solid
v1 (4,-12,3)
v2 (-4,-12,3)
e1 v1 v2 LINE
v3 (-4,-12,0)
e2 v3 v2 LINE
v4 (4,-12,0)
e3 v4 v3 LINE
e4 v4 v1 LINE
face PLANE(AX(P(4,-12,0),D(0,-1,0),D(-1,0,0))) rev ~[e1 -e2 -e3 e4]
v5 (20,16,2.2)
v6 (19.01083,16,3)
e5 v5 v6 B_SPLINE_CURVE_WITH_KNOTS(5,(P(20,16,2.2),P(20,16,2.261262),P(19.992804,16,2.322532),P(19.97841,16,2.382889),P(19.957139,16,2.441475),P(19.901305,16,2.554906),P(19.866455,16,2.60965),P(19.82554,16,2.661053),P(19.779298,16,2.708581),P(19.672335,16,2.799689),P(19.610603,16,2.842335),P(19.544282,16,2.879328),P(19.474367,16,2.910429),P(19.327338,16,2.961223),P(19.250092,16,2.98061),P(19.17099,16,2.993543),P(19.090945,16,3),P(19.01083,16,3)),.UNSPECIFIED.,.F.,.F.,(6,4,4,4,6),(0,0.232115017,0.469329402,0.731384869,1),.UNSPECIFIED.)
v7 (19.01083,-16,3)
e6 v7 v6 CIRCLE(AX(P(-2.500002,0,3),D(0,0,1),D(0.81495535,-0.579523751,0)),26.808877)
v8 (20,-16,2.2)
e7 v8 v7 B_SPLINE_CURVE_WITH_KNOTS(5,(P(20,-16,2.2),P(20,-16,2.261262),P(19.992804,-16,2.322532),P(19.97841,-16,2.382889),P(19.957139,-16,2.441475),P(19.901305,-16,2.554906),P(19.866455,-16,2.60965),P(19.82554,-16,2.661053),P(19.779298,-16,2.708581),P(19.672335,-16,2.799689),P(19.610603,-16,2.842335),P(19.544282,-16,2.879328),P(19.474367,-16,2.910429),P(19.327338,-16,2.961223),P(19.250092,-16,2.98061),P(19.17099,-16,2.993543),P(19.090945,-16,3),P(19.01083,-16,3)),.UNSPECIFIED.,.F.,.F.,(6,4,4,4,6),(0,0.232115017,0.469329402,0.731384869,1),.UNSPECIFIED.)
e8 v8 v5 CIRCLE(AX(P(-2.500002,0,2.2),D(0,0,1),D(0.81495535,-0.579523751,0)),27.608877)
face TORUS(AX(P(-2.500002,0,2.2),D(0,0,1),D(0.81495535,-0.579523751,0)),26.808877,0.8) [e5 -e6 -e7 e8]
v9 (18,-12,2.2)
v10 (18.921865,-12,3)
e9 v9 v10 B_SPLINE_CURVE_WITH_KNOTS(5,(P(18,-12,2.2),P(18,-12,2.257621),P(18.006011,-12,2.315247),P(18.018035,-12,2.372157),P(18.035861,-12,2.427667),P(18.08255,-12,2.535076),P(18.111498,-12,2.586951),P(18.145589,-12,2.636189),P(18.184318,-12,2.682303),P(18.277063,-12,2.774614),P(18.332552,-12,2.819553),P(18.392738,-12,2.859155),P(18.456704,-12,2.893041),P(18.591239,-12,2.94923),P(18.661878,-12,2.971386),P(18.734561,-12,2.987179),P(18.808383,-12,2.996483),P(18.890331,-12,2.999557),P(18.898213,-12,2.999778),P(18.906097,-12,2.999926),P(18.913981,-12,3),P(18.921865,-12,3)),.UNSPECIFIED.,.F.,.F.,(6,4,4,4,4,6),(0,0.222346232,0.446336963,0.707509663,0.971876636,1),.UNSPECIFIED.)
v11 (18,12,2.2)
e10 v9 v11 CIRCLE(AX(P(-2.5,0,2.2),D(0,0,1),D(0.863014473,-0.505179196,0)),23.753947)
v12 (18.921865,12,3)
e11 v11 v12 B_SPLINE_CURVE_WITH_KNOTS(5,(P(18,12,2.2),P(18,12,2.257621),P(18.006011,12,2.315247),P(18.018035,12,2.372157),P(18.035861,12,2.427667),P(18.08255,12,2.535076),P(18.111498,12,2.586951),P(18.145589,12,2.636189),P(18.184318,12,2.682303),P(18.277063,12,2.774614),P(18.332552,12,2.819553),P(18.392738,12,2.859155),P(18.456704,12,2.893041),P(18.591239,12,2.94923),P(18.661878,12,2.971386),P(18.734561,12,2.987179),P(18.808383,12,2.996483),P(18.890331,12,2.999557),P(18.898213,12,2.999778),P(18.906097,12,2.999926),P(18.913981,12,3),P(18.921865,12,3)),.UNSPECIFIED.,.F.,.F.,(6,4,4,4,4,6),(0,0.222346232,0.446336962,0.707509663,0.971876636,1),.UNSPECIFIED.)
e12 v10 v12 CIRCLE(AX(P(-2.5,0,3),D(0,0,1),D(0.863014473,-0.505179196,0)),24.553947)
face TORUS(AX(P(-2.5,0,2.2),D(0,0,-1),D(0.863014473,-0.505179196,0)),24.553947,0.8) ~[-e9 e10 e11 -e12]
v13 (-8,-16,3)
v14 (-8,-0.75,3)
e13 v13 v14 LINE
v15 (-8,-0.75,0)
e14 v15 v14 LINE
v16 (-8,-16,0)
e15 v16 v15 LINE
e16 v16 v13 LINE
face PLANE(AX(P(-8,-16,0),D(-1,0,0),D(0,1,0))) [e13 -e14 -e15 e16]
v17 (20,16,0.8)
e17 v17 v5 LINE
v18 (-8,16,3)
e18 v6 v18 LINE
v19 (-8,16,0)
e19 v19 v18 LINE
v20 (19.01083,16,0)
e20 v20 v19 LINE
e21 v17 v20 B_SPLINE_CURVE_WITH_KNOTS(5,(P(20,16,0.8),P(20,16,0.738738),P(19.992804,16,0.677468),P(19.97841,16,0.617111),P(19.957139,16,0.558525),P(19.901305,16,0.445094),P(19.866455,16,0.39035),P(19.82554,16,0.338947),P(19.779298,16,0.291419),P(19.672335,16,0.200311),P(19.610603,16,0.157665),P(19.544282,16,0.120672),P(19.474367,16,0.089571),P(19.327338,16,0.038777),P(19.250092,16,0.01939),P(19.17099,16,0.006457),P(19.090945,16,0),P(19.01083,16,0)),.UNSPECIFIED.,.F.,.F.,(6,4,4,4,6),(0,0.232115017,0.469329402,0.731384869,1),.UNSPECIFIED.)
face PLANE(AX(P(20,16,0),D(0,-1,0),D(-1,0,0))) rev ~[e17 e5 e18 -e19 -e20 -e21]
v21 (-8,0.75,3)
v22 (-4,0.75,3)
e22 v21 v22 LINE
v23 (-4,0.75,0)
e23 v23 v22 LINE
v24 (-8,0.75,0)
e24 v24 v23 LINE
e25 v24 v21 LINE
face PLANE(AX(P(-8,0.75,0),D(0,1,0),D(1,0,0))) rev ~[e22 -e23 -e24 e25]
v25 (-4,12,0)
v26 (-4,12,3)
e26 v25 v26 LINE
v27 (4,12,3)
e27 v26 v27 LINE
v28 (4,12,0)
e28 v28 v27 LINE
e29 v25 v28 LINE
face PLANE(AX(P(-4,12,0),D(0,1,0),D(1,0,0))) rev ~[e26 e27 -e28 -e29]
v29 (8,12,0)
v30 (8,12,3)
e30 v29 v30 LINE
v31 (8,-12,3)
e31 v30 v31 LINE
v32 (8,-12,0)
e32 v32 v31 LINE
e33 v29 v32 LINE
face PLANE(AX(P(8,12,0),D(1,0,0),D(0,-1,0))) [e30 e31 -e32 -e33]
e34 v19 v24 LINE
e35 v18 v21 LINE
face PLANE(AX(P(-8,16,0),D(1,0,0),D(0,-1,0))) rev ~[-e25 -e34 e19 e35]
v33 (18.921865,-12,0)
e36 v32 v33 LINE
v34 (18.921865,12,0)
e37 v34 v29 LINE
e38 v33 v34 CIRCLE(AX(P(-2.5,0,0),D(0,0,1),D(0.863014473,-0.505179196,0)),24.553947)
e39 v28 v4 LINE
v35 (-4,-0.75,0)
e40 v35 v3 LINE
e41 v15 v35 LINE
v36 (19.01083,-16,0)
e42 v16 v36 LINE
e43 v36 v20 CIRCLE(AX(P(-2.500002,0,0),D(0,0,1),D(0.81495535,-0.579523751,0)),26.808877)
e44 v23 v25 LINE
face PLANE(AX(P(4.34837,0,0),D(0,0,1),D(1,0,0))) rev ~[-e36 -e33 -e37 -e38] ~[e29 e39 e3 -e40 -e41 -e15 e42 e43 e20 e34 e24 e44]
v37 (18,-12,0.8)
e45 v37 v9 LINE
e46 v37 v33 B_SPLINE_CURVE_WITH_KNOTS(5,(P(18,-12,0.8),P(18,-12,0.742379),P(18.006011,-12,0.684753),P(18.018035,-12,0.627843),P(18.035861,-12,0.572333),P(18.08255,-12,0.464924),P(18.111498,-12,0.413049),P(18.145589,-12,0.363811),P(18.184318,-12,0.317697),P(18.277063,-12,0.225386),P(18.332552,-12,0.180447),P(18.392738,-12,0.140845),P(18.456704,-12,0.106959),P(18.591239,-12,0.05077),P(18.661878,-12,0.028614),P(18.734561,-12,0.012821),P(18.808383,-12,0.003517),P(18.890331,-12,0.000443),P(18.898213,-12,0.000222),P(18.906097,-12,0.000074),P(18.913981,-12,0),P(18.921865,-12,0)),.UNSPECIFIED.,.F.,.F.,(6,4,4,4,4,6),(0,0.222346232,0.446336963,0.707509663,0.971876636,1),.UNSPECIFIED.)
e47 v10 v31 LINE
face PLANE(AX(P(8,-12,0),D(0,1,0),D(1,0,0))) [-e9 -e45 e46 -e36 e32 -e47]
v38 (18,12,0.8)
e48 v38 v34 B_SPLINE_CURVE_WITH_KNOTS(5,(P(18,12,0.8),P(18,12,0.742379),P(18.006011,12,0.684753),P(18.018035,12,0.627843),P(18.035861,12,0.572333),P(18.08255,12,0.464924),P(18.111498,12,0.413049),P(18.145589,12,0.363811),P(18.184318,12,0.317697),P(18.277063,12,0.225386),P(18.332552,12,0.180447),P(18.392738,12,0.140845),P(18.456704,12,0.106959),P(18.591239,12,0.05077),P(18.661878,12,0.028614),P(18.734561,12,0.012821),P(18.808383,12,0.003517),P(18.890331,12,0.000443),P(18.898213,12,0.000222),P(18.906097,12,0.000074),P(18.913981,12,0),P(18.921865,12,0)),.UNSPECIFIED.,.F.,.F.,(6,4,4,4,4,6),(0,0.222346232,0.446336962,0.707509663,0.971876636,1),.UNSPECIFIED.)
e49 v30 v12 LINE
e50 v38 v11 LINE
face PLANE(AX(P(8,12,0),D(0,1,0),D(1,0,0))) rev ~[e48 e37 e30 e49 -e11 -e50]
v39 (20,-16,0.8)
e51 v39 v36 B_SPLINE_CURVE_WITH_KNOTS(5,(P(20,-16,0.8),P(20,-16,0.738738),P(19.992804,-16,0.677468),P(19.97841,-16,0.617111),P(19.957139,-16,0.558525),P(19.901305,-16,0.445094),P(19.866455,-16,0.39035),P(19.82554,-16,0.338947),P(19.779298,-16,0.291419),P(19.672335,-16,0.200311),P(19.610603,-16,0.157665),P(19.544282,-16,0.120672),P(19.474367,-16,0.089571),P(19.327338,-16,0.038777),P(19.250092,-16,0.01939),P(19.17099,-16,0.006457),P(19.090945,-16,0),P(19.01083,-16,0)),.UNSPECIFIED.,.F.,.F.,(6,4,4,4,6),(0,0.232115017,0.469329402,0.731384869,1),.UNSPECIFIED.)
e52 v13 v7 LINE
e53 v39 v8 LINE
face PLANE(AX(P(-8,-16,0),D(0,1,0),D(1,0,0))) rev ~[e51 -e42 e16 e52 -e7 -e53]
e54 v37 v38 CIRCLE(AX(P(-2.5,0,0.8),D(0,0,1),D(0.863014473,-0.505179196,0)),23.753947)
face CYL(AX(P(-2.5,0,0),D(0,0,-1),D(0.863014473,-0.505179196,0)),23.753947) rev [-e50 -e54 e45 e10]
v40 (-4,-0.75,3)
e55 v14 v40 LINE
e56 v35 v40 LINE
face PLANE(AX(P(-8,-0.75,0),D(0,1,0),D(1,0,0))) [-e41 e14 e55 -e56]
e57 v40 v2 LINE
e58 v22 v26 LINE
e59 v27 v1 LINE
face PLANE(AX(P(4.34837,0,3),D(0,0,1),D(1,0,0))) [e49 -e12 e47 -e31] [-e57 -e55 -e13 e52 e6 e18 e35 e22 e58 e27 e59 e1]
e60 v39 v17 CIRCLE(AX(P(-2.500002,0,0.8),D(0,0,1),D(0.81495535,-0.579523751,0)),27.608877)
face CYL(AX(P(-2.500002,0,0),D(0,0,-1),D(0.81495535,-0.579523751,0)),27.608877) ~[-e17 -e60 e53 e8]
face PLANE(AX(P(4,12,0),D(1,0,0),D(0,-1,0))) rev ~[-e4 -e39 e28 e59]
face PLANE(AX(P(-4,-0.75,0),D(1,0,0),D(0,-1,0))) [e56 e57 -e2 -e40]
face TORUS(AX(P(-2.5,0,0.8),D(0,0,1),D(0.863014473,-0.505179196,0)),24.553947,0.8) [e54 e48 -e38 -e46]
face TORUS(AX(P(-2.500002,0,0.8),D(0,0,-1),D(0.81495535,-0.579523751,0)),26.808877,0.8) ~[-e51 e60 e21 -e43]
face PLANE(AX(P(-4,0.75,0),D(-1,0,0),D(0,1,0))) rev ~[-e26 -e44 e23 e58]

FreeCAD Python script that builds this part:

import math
import FreeCAD as App
import Part
import Sketcher
Q = App.Units.Quantity


def edges_at(feature, points):
    """Names of the edges that pass closest to the given points."""
    edges = feature.Shape.Edges
    near = lambda p: min(range(len(edges)), key=lambda i: edges[i].distToShape(Part.Vertex(*p))[0])
    return sorted({f"Edge{near(p) + 1}" for p in points})

doc = App.newDocument("Part")
params = doc.addObject("Spreadsheet::Sheet", "Params")
for row, (alias, value) in enumerate([
    ("sketch1_width", "8 mm"),
    ("sketch1_width2", "4 mm"),
    ("sketch1_width3", "28 mm"),
    ("sketch1_width4", "10 mm"),
    ("sketch1_height", "24 mm"),
    ("pad1_length", "3 mm"),
    ("fillet_radius", "0.8 mm"),
], start=1):
    params.set(f"A{row}", alias)
    params.set(f"B{row}", "=" + value)
    params.setAlias(f"B{row}", alias)

body = doc.addObject("PartDesign::Body", "Body")

# Sketch on XY plane
sketch1 = body.newObject("Sketcher::SketchObject", "Sketch")
sketch1.AttachmentSupport = (doc.getObject("XY_Plane"), [""])
sketch1.MapMode = "FlatFace"
sketch1.addGeometry(Part.LineSegment(App.Vector(-4, 12, 0), App.Vector(4, 12, 0)), False)
sketch1.addGeometry(Part.LineSegment(App.Vector(4, 12, 0), App.Vector(4, -12, 0)), False)
sketch1.addGeometry(Part.LineSegment(App.Vector(4, -12, 0), App.Vector(-4, -12, 0)), False)
sketch1.addGeometry(Part.LineSegment(App.Vector(-4, -12, 0), App.Vector(-4, -0.8, 0)), False)
sketch1.addGeometry(Part.LineSegment(App.Vector(-4, -0.8, 0), App.Vector(-8, -0.8, 0)), False)
sketch1.addGeometry(Part.LineSegment(App.Vector(-8, -0.8, 0), App.Vector(-8, -16, 0)), False)
sketch1.addGeometry(Part.LineSegment(App.Vector(-8, -16, 0), App.Vector(20, -16, 0)), False)
sketch1.addGeometry(Part.ArcOfCircle(Part.Circle(App.Vector(-2.5, 0, 0), App.Vector(0, 0, 1), 27.6), math.radians(-35), math.radians(35)), False)
sketch1.addGeometry(Part.LineSegment(App.Vector(20, 16, 0), App.Vector(-8, 16, 0)), False)
sketch1.addGeometry(Part.LineSegment(App.Vector(-8, 16, 0), App.Vector(-8, 0.8, 0)), False)
sketch1.addGeometry(Part.LineSegment(App.Vector(-8, 0.8, 0), App.Vector(-4, 0.8, 0)), False)
sketch1.addGeometry(Part.LineSegment(App.Vector(-4, 0.8, 0), App.Vector(-4, 12, 0)), False)
sketch1.addGeometry(Part.LineSegment(App.Vector(8, -12, 0), App.Vector(8, 12, 0)), False)
sketch1.addGeometry(Part.LineSegment(App.Vector(8, 12, 0), App.Vector(18, 12, 0)), False)
sketch1.addGeometry(Part.ArcOfCircle(Part.Circle(App.Vector(-2.5, 0, 0), App.Vector(0, 0, 1), 23.8), math.radians(-30), math.radians(30)), False)
sketch1.addGeometry(Part.LineSegment(App.Vector(18, -12, 0), App.Vector(8, -12, 0)), False)
sketch1.addConstraint(Sketcher.Constraint("Coincident", 0, 2, 1, 1))
sketch1.addConstraint(Sketcher.Constraint("Coincident", 1, 2, 2, 1))
sketch1.addConstraint(Sketcher.Constraint("Coincident", 2, 2, 3, 1))
sketch1.addConstraint(Sketcher.Constraint("Coincident", 3, 2, 4, 1))
sketch1.addConstraint(Sketcher.Constraint("Coincident", 4, 2, 5, 1))
sketch1.addConstraint(Sketcher.Constraint("Coincident", 5, 2, 6, 1))
sketch1.addConstraint(Sketcher.Constraint("Coincident", 6, 2, 7, 1))
sketch1.addConstraint(Sketcher.Constraint("Coincident", 7, 2, 8, 1))
sketch1.addConstraint(Sketcher.Constraint("Coincident", 8, 2, 9, 1))
sketch1.addConstraint(Sketcher.Constraint("Coincident", 9, 2, 10, 1))
sketch1.addConstraint(Sketcher.Constraint("Coincident", 10, 2, 11, 1))
sketch1.addConstraint(Sketcher.Constraint("Coincident", 11, 2, 0, 1))
sketch1.addConstraint(Sketcher.Constraint("Coincident", 12, 2, 13, 1))
sketch1.addConstraint(Sketcher.Constraint("Coincident", 13, 2, 14, 2))
sketch1.addConstraint(Sketcher.Constraint("Coincident", 14, 1, 15, 1))
sketch1.addConstraint(Sketcher.Constraint("Coincident", 15, 2, 12, 1))
sketch1.addConstraint(Sketcher.Constraint("Horizontal", 0))
sketch1.addConstraint(Sketcher.Constraint("Vertical", 1))
sketch1.addConstraint(Sketcher.Constraint("Horizontal", 2))
sketch1.addConstraint(Sketcher.Constraint("Vertical", 3))
sketch1.addConstraint(Sketcher.Constraint("Horizontal", 4))
sketch1.addConstraint(Sketcher.Constraint("Vertical", 5))
sketch1.addConstraint(Sketcher.Constraint("Horizontal", 6))
sketch1.addConstraint(Sketcher.Constraint("Horizontal", 8))
sketch1.addConstraint(Sketcher.Constraint("Vertical", 9))
sketch1.addConstraint(Sketcher.Constraint("Horizontal", 10))
sketch1.addConstraint(Sketcher.Constraint("Vertical", 11))
sketch1.addConstraint(Sketcher.Constraint("Vertical", 12))
sketch1.addConstraint(Sketcher.Constraint("Horizontal", 13))
sketch1.addConstraint(Sketcher.Constraint("Horizontal", 15))
sketch1.addConstraint(Sketcher.Constraint("Coincident", 14, 3, 7, 3))
sketch1.addConstraint(Sketcher.Constraint("Symmetric", 0, 2, 2, 2, -1, 1))
sketch1.addConstraint(Sketcher.Constraint("Symmetric", 6, 2, 7, 2, -1))
sketch1.addConstraint(Sketcher.Constraint("Symmetric", 4, 2, 9, 2, -1))
sketch1.addConstraint(Sketcher.Constraint("Horizontal", 11, 2, 12, 2))
sketch1.addConstraint(Sketcher.Constraint("Horizontal", 2, 2, 14, 1))
sketch1.addConstraint(Sketcher.Constraint("Vertical", 3, 2, 10, 2))
sketch1.addConstraint(Sketcher.Constraint("DistanceX", 0, 1, 0, 2, Q("8 mm")))
sketch1.addConstraint(Sketcher.Constraint("DistanceX", 4, 2, 4, 1, Q("4 mm")))
sketch1.addConstraint(Sketcher.Constraint("DistanceX", 6, 1, 6, 2, Q("28 mm")))
sketch1.addConstraint(Sketcher.Constraint("DistanceX", 13, 1, 13, 2, Q("10 mm")))
sketch1.addConstraint(Sketcher.Constraint("DistanceY", 1, 2, 1, 1, Q("24 mm")))
sketch1.addConstraint(Sketcher.Constraint("DistanceY", 5, 2, -1, 1, Q("16 mm")))
sketch1.addConstraint(Sketcher.Constraint("DistanceX", -1, 1, 12, 2, Q("8 mm")))
sketch1.addConstraint(Sketcher.Constraint("DistanceY", 3, 1, 3, 2, Q("11.25 mm")))
sketch1.addConstraint(Sketcher.Constraint("DistanceX", 14, 3, -1, 1, Q("2.5 mm")))
sketch1.setExpression("Constraints[37]", "Params.sketch1_width")
sketch1.setExpression("Constraints[38]", "Params.sketch1_width2")
sketch1.setExpression("Constraints[39]", "Params.sketch1_width3")
sketch1.setExpression("Constraints[40]", "Params.sketch1_width4")
sketch1.setExpression("Constraints[41]", "Params.sketch1_height")
pad1 = body.newObject("PartDesign::Pad", "Pad")
pad1.Profile = sketch1
pad1.setExpression("Length", "Params.pad1_length")
doc.recompute()

fillet = body.newObject("PartDesign::Fillet", "Fillet")
fillet.Base = (pad1, edges_at(pad1, [
    (21.254, 0, 3),
    (25.109, 0, 3),
    (25.109, 0, 0),
    (21.254, 0, 0),
]))
fillet.setExpression("Radius", "Params.fillet_radius")

doc.recompute()
